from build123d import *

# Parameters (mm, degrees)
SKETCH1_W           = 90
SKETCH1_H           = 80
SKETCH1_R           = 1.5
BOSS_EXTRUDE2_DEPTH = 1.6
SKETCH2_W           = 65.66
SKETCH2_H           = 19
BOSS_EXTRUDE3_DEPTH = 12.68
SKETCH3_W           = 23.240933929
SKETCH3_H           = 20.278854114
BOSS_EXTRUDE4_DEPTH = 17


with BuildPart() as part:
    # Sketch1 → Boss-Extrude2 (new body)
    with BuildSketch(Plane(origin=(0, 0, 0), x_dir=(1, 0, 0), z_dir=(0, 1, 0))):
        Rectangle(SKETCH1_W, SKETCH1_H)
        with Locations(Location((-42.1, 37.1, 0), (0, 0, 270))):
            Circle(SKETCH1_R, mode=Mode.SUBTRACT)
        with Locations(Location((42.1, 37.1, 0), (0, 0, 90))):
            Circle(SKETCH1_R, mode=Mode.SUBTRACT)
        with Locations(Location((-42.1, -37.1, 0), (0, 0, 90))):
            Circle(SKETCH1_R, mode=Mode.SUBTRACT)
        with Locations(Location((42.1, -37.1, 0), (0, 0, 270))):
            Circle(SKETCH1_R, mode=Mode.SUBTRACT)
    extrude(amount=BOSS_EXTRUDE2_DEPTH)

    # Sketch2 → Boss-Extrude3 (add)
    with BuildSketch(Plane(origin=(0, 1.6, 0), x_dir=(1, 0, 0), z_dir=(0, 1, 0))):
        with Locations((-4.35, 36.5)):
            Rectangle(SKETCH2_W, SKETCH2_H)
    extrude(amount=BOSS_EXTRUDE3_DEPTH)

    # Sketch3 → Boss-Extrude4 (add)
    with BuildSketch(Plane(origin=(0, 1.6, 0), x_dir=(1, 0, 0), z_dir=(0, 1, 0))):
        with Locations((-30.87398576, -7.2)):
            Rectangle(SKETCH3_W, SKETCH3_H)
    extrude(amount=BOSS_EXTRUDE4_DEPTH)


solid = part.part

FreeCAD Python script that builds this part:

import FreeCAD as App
import Part
import Sketcher
from FreeCAD import Vector


def add_polygon(sketch, points):
    """Adds a closed chain of lines whose ends are joined by coincident constraints."""
    first, n = sketch.GeometryCount, len(points)
    for a, b in zip(points, points[1:] + points[:1]):
        sketch.addGeometry(Part.LineSegment(App.Vector(*a, 0), App.Vector(*b, 0)), False)
    for i in range(n):
        sketch.addConstraint(Sketcher.Constraint("Coincident", first + i, 2, first + (i + 1) % n, 1))

doc = App.newDocument("Part")
body = doc.addObject("PartDesign::Body", "Body")

# Sketch on XZ plane
sketch1 = doc.addObject("Sketcher::SketchObject", "Sketch")
body.addObject(sketch1)
sketch1.AttachmentSupport = (doc.XZ_Plane, [""])
sketch1.MapMode = "FlatFace"
add_polygon(sketch1, [(-45, -40), (-45, 40), (45, 40), (45, -40)])  # lines 0-3
sketch1.addGeometry(Part.Circle(Vector(-42.1, 37.1, 0), Vector(0, 0, 1), 1.5), False)  # 4
sketch1.addGeometry(Part.Circle(Vector(42.1, 37.1, 0), Vector(0, 0, 1), 1.5), False)  # 5
sketch1.addGeometry(Part.Circle(Vector(-42.1, -37.1, 0), Vector(0, 0, 1), 1.5), False)  # 6
sketch1.addGeometry(Part.Circle(Vector(42.1, -37.1, 0), Vector(0, 0, 1), 1.5), False)  # 7
sketch1.addConstraint([
    Sketcher.Constraint("Vertical", 0),
    Sketcher.Constraint("Horizontal", 1),
    Sketcher.Constraint("Vertical", 2),
    Sketcher.Constraint("Horizontal", 3),
    Sketcher.Constraint("Equal", 4, 5),
    Sketcher.Constraint("Equal", 5, 6),
    Sketcher.Constraint("Equal", 6, 7),
    Sketcher.Constraint("Symmetric", 5, 3, 6, 3, -1, 1),
    Sketcher.Constraint("Symmetric", 4, 3, 7, 3, -1, 1),
    Sketcher.Constraint("Symmetric", 0, 2, 2, 2, -1, 1),
    Sketcher.Constraint("Symmetric", 4, 3, 5, 3, -2),
    Sketcher.Constraint("Diameter", 4, 3.0),
    Sketcher.Constraint("DistanceX", 1, 1, 1, 2, 90.0),
    Sketcher.Constraint("DistanceY", 0, 1, 0, 2, 80.0),
    Sketcher.Constraint("DistanceX", 4, 3, -1, 1, 42.1),
    Sketcher.Constraint("DistanceY", -1, 1, 4, 3, 37.1),
])
pad1 = doc.addObject("PartDesign::Pad", "Pad")
body.addObject(pad1)
pad1.Profile = sketch1
pad1.Length = 1.6
pad1.Reversed = True

# Sketch on XZ plane
sketch2 = doc.addObject("Sketcher::SketchObject", "Sketch001")
body.addObject(sketch2)
sketch2.AttachmentSupport = (doc.XZ_Plane, [""])
sketch2.MapMode = "FlatFace"
sketch2.AttachmentOffset = App.Placement(Vector(0, 0, -1.6), App.Rotation())
add_polygon(sketch2, [(-37.18, -46), (-37.18, -27), (28.48, -27), (28.48, -46)])  # lines 0-3
sketch2.addConstraint([
    Sketcher.Constraint("Vertical", 0),
    Sketcher.Constraint("Horizontal", 1),
    Sketcher.Constraint("Vertical", 2),
    Sketcher.Constraint("Horizontal", 3),
    Sketcher.Constraint("DistanceY", 0, 1, 0, 2, 19.0),
    Sketcher.Constraint("DistanceY", 0, 2, -1, 1, 27.0),
    Sketcher.Constraint("DistanceX", 1, 1, 1, 2, 65.66),
    Sketcher.Constraint("DistanceX", 0, 2, -1, 1, 37.18),
])
pad2 = doc.addObject("PartDesign::Pad", "Pad001")
body.addObject(pad2)
pad2.Profile = sketch2
pad2.Length = 12.68
pad2.Reversed = True

# Sketch on XZ plane
sketch3 = doc.addObject("Sketcher::SketchObject", "Sketch002")
body.addObject(sketch3)
sketch3.AttachmentSupport = (doc.XZ_Plane, [""])
sketch3.MapMode = "FlatFace"
sketch3.AttachmentOffset = App.Placement(Vector(0, 0, -1.6), App.Rotation())
add_polygon(sketch3, [(-42.494453, -2.939427), (-42.494453, 17.339427), (-19.253519, 17.339427), (-19.253519, -2.939427)])  # lines 0-3
sketch3.addConstraint([
    Sketcher.Constraint("Vertical", 0),
    Sketcher.Constraint("Horizontal", 1),
    Sketcher.Constraint("Vertical", 2),
    Sketcher.Constraint("Horizontal", 3),
    Sketcher.Constraint("DistanceX", 1, 1, 1, 2, 23.240934),
    Sketcher.Constraint("DistanceY", 0, 1, 0, 2, 20.278854),
    Sketcher.Constraint("DistanceX", 1, 2, -1, 1, 19.253519),
    Sketcher.Constraint("DistanceY", -1, 1, 0, 2, 17.339427),
])
pad3 = doc.addObject("PartDesign::Pad", "Pad002")
body.addObject(pad3)
pad3.Profile = sketch3
pad3.Length = 17
pad3.Reversed = True

doc.recompute()
